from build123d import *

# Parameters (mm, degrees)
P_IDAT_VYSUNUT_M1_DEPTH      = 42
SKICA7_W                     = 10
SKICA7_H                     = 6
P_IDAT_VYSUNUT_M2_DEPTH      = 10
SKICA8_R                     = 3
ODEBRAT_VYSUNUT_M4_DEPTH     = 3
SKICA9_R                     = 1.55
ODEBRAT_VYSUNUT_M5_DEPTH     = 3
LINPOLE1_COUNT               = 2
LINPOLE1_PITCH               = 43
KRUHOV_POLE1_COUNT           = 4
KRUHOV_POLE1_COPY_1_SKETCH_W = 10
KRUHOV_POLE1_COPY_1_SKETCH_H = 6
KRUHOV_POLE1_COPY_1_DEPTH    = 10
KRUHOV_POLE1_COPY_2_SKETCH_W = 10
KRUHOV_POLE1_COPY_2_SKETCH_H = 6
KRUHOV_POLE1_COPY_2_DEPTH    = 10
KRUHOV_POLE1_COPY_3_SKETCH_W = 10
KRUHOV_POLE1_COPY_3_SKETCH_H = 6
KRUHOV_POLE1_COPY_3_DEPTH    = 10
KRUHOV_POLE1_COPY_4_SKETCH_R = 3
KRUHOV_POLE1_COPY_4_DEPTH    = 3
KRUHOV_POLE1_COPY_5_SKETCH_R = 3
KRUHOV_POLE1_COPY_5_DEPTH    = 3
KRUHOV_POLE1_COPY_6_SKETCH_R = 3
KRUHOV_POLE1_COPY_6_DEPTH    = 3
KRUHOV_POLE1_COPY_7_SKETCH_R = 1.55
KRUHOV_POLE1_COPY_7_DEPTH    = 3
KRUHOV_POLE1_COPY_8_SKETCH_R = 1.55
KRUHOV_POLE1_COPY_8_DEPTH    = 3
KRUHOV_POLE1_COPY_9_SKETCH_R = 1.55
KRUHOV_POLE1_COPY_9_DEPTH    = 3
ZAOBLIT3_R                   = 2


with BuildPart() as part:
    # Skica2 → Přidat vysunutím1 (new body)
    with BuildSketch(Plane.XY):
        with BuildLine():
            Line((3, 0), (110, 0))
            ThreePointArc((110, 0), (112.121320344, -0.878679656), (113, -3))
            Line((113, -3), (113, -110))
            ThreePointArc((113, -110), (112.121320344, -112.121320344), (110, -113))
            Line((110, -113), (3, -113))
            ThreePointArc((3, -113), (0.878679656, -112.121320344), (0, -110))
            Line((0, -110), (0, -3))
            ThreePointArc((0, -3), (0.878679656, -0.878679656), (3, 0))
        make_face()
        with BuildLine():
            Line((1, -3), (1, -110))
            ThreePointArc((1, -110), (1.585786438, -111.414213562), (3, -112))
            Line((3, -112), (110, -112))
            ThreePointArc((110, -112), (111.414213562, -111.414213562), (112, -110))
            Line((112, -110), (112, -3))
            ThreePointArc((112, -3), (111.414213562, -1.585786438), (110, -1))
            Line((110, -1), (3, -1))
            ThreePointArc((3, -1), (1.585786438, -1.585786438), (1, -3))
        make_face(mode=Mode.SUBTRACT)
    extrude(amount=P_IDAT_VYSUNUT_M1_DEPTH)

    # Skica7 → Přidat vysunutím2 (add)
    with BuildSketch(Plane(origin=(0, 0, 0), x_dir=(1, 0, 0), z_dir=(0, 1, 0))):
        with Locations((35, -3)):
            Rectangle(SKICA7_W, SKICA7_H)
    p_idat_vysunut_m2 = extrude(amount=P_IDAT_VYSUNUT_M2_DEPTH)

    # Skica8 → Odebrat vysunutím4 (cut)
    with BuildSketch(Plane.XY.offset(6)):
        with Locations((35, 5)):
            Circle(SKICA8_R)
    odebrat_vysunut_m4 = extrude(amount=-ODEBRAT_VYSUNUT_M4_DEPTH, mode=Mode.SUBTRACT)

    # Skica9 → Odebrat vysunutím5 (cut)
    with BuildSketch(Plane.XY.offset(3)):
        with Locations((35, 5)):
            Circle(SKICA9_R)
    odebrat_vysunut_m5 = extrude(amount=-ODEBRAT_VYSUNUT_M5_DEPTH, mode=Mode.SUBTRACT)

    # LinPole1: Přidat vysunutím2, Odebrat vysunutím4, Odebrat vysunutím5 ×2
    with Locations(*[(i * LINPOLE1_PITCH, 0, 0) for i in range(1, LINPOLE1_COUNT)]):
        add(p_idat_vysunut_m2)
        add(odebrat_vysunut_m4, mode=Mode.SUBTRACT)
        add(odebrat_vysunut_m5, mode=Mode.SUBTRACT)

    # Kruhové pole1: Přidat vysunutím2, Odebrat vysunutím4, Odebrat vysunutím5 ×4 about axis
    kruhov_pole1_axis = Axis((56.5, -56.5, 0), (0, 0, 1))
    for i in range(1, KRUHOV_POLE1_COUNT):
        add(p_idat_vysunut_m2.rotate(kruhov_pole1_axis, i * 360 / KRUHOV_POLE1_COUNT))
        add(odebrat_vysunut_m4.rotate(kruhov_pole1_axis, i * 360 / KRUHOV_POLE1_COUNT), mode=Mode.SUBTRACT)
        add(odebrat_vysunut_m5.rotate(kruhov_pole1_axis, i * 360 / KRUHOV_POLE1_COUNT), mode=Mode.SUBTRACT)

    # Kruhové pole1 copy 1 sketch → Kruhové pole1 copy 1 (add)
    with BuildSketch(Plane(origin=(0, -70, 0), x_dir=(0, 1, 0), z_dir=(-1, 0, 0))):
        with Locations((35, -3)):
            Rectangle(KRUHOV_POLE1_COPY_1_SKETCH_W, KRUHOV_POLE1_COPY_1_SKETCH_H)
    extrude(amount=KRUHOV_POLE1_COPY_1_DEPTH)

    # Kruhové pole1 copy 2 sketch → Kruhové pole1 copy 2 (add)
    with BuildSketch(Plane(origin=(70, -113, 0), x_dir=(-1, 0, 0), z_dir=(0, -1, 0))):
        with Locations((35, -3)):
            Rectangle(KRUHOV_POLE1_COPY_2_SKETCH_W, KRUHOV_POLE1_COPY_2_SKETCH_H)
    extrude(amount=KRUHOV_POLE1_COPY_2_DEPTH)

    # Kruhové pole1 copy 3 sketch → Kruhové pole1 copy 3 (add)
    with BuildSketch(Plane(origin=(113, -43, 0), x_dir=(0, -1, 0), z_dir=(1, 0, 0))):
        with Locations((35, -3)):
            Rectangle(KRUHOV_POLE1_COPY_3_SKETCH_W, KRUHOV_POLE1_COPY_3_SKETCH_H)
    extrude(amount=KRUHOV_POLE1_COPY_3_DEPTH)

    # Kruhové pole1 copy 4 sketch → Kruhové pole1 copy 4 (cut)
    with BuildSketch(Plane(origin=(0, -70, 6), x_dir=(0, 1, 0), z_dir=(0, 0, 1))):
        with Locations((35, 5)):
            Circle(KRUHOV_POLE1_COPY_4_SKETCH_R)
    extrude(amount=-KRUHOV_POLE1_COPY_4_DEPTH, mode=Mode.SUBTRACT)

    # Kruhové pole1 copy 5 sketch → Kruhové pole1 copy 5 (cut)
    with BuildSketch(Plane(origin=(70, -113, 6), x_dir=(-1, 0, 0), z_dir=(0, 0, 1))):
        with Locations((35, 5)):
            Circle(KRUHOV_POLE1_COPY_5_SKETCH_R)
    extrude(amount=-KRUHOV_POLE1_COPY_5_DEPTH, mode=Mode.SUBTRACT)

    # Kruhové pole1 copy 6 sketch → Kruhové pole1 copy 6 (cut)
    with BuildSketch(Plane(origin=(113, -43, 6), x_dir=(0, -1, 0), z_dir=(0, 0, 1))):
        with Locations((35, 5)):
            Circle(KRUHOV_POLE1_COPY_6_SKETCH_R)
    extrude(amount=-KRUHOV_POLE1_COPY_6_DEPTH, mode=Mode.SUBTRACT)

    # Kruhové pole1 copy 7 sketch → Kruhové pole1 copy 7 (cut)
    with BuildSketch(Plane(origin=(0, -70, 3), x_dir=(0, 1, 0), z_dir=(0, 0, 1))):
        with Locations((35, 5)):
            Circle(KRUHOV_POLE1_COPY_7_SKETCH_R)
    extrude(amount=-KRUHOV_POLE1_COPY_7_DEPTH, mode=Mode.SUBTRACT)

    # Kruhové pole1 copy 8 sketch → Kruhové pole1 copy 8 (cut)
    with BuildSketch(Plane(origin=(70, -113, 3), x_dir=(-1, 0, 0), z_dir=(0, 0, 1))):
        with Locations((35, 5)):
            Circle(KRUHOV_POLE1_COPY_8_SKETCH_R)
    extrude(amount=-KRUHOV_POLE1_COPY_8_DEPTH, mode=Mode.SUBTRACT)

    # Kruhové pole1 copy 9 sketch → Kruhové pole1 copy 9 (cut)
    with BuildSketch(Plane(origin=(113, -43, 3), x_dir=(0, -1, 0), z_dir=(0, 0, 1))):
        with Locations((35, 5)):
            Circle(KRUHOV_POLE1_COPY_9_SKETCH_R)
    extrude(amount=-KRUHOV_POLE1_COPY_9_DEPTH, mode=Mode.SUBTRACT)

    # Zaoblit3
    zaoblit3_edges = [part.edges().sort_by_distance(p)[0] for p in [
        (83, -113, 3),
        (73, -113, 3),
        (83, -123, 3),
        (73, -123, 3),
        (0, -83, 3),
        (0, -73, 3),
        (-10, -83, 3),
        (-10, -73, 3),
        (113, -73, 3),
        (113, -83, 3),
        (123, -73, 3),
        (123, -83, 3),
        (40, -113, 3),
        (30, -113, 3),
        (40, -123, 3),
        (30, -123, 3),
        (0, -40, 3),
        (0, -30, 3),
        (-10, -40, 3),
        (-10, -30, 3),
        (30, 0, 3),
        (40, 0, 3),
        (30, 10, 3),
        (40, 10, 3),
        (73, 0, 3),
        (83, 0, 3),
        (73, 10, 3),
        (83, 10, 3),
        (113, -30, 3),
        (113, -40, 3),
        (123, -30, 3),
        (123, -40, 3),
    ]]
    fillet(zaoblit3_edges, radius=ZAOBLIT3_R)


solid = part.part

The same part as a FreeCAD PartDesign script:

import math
import FreeCAD as App
import Part
import Sketcher

V = App.Vector


def edges_at(feature, points):
    """Names of the edges that pass closest to the given points."""
    edges = feature.Shape.Edges
    near = lambda p: min(range(len(edges)), key=lambda i: edges[i].distToShape(Part.Vertex(*p))[0])
    return sorted({f"Edge{near(p) + 1}" for p in points})


def add_polygon(sketch, points):
    """Adds a closed chain of lines whose ends are joined by coincident constraints."""
    first, n = sketch.GeometryCount, len(points)
    for a, b in zip(points, points[1:] + points[:1]):
        sketch.addGeometry(Part.LineSegment(App.Vector(*a, 0), App.Vector(*b, 0)), False)
    for i in range(n):
        sketch.addConstraint(Sketcher.Constraint("Coincident", first + i, 2, first + (i + 1) % n, 1))

doc = App.newDocument("Part")
params = doc.addObject("Spreadsheet::Sheet", "Params")
for row, (alias, value) in enumerate([
    ("sketch1_radius", "3 mm"),
    ("sketch1_radius2", "2 mm"),
    ("sketch1_width", "107 mm"),
    ("pad1_length", "42 mm"),
    ("sketch2_width", "10 mm"),
    ("sketch2_height", "6 mm"),
    ("pad2_length", "10 mm"),
    ("sketch3_diameter", "6 mm"),
    ("pocket1_length", "3 mm"),
    ("sketch4_diameter", "3.1 mm"),
    ("pocket2_length", "3 mm"),
    ("linearpattern_pitch", "43 mm"),
    ("sketch5_width", "10 mm"),
    ("sketch5_height", "6 mm"),
    ("pad3_length", "10 mm"),
    ("sketch6_width", "10 mm"),
    ("sketch6_height", "6 mm"),
    ("pad4_length", "10 mm"),
    ("sketch7_width", "10 mm"),
    ("sketch7_height", "6 mm"),
    ("pad5_length", "10 mm"),
    ("sketch8_diameter", "6 mm"),
    ("pocket3_length", "3 mm"),
    ("sketch9_diameter", "6 mm"),
    ("pocket4_length", "3 mm"),
    ("sketch10_diameter", "6 mm"),
    ("pocket5_length", "3 mm"),
    ("sketch11_diameter", "3.1 mm"),
    ("pocket6_length", "3 mm"),
    ("sketch12_diameter", "3.1 mm"),
    ("pocket7_length", "3 mm"),
    ("sketch13_diameter", "3.1 mm"),
    ("pocket8_length", "3 mm"),
    ("fillet_radius", "2 mm"),
], start=1):
    params.set(f"A{row}", alias)
    params.set(f"B{row}", "=" + value)
    params.setAlias(f"B{row}", alias)

body = doc.addObject("PartDesign::Body", "Body")

sketch1 = body.newObject("Sketcher::SketchObject", "Sketch")
sketch1.AttachmentSupport = (doc.getObject("XY_Plane"), [""])
sketch1.MapMode = "FlatFace"
sketch1.addGeometry([
    Part.LineSegment(V(110, 0, 0), V(3, 0, 0)),
    Part.ArcOfCircle(Part.Circle(V(3, -3, 0), V(0, 0, 1), 3), math.radians(90), math.radians(180)),
    Part.LineSegment(V(0, -3, 0), V(0, -110, 0)),
    Part.ArcOfCircle(Part.Circle(V(3, -110, 0), V(0, 0, 1), 3), math.radians(180), math.radians(270)),
    Part.LineSegment(V(3, -113, 0), V(110, -113, 0)),
    Part.ArcOfCircle(Part.Circle(V(110, -110, 0), V(0, 0, 1), 3), math.radians(-90), math.radians(0)),
    Part.LineSegment(V(113, -110, 0), V(113, -3, 0)),
    Part.ArcOfCircle(Part.Circle(V(110, -3, 0), V(0, 0, 1), 3), math.radians(0), math.radians(90)),
    Part.ArcOfCircle(Part.Circle(V(3, -3, 0), V(0, 0, 1), 2), math.radians(90), math.radians(180)),
    Part.LineSegment(V(3, -1, 0), V(110, -1, 0)),
    Part.ArcOfCircle(Part.Circle(V(110, -3, 0), V(0, 0, 1), 2), math.radians(0), math.radians(90)),
    Part.LineSegment(V(112, -3, 0), V(112, -110, 0)),
    Part.ArcOfCircle(Part.Circle(V(110, -110, 0), V(0, 0, 1), 2), math.radians(-90), math.radians(0)),
    Part.LineSegment(V(110, -112, 0), V(3, -112, 0)),
    Part.ArcOfCircle(Part.Circle(V(3, -110, 0), V(0, 0, 1), 2), math.radians(-180), math.radians(-90)),
    Part.LineSegment(V(1, -110, 0), V(1, -3, 0)),
], False)
sketch1.addConstraint([
    Sketcher.Constraint("Tangent", 0, 2, 1, 1),
    Sketcher.Constraint("Tangent", 1, 2, 2, 1),
    Sketcher.Constraint("Tangent", 2, 2, 3, 1),
    Sketcher.Constraint("Tangent", 3, 2, 4, 1),
    Sketcher.Constraint("Tangent", 4, 2, 5, 1),
    Sketcher.Constraint("Tangent", 5, 2, 6, 1),
    Sketcher.Constraint("Tangent", 6, 2, 7, 1),
    Sketcher.Constraint("Tangent", 7, 2, 0, 1),
    Sketcher.Constraint("Tangent", 8, 1, 9, 1),
    Sketcher.Constraint("Tangent", 9, 2, 10, 2),
    Sketcher.Constraint("Tangent", 10, 1, 11, 1),
    Sketcher.Constraint("Tangent", 11, 2, 12, 2),
    Sketcher.Constraint("Tangent", 12, 1, 13, 1),
    Sketcher.Constraint("Tangent", 13, 2, 14, 2),
    Sketcher.Constraint("Tangent", 14, 1, 15, 1),
    Sketcher.Constraint("Tangent", 15, 2, 8, 2),
    Sketcher.Constraint("Horizontal", 0),
    Sketcher.Constraint("Vertical", 2),
    Sketcher.Constraint("Horizontal", 4),
    Sketcher.Constraint("Vertical", 6),
    Sketcher.Constraint("Horizontal", 9),
    Sketcher.Constraint("Vertical", 11),
    Sketcher.Constraint("Horizontal", 13),
    Sketcher.Constraint("Vertical", 15),
    Sketcher.Constraint("Coincident", 8, 3, 1, 3),
    Sketcher.Constraint("Coincident", 10, 3, 7, 3),
    Sketcher.Constraint("Coincident", 12, 3, 5, 3),
    Sketcher.Constraint("Equal", 1, 3),
    Sketcher.Constraint("Equal", 3, 5),
    Sketcher.Constraint("Equal", 5, 7),
    Sketcher.Constraint("Equal", 12, 14),
    Sketcher.Constraint("PointOnObject", 0, 2, -1),
    Sketcher.Constraint("PointOnObject", 1, 2, -2),
    Sketcher.Constraint("Equal", 13, 2),
    Sketcher.Constraint("Radius", 1, 3.0),
    Sketcher.Constraint("Radius", 8, 2.0),
    Sketcher.Constraint("DistanceX", 0, 2, 0, 1, 107.0),
])
sketch1.setExpression("Constraints[34]", "Params.sketch1_radius")
sketch1.setExpression("Constraints[35]", "Params.sketch1_radius2")
sketch1.setExpression("Constraints[36]", "Params.sketch1_width")
pad1 = body.newObject("PartDesign::Pad", "Pad")
pad1.Profile = sketch1
pad1.setExpression("Length", "Params.pad1_length")

sketch2 = body.newObject("Sketcher::SketchObject", "Sketch001")
sketch2.AttachmentSupport = (doc.getObject("XZ_Plane"), [""])
sketch2.MapMode = "FlatFace"
add_polygon(sketch2, [(30, 0), (30, 6), (40, 6), (40, 0)])
sketch2.addConstraint([
    Sketcher.Constraint("Vertical", 0),
    Sketcher.Constraint("Horizontal", 1),
    Sketcher.Constraint("Vertical", 2),
    Sketcher.Constraint("Horizontal", 3),
    Sketcher.Constraint("PointOnObject", 2, 2, -1),
    Sketcher.Constraint("DistanceX", 1, 1, 1, 2, 10.0),
    Sketcher.Constraint("DistanceY", 0, 1, 0, 2, 6.0),
    Sketcher.Constraint("DistanceX", -1, 1, 0, 2, 30.0),
])
sketch2.setExpression("Constraints[9]", "Params.sketch2_width")
sketch2.setExpression("Constraints[10]", "Params.sketch2_height")
pad2 = body.newObject("PartDesign::Pad", "Pad001")
pad2.Profile = sketch2
pad2.setExpression("Length", "Params.pad2_length")
pad2.Reversed = True

sketch3 = body.newObject("Sketcher::SketchObject", "Sketch002")
sketch3.AttachmentSupport = (doc.getObject("XY_Plane"), [""])
sketch3.MapMode = "FlatFace"
sketch3.AttachmentOffset = App.Placement(V(0, 0, 6), App.Rotation())
sketch3.addGeometry(Part.Circle(V(35, 5, 0), V(0, 0, 1), 3), False)
sketch3.addConstraint([
    Sketcher.Constraint("Diameter", 0, 6.0),
    Sketcher.Constraint("DistanceX", -1, 1, 0, 3, 35.0),
    Sketcher.Constraint("DistanceY", -1, 1, 0, 3, 5.0),
])
sketch3.setExpression("Constraints[0]", "Params.sketch3_diameter")
pocket1 = body.newObject("PartDesign::Pocket", "Pocket")
pocket1.Profile = sketch3
pocket1.setExpression("Length", "Params.pocket1_length")

sketch4 = body.newObject("Sketcher::SketchObject", "Sketch003")
sketch4.AttachmentSupport = (doc.getObject("XY_Plane"), [""])
sketch4.MapMode = "FlatFace"
sketch4.AttachmentOffset = App.Placement(V(0, 0, 3), App.Rotation())
sketch4.addGeometry(Part.Circle(V(35, 5, 0), V(0, 0, 1), 1.6), False)
sketch4.addConstraint([
    Sketcher.Constraint("Diameter", 0, 3.1),
    Sketcher.Constraint("DistanceX", -1, 1, 0, 3, 35.0),
    Sketcher.Constraint("DistanceY", -1, 1, 0, 3, 5.0),
])
sketch4.setExpression("Constraints[0]", "Params.sketch4_diameter")
pocket2 = body.newObject("PartDesign::Pocket", "Pocket001")
pocket2.Profile = sketch4
pocket2.setExpression("Length", "Params.pocket2_length")
doc.recompute()

linearpattern = body.newObject("PartDesign::LinearPattern", "LinearPattern")
linearpattern.Originals = [pad2, pocket1, pocket2]
linearpattern.Direction = (doc.getObject("X_Axis"), [""])
linearpattern.Mode = "offset"
linearpattern.setExpression("Offset", "Params.linearpattern_pitch")
linearpattern.Occurrences = 2
body.Tip = linearpattern
doc.recompute()

datumline = body.newObject("PartDesign::Line", "DatumLine")
datumline.Placement = App.Placement(V(56.5, -56.5, 0), App.Rotation(V(0, 0, 1), V(0, 0, 1)))
polarpattern = body.newObject("PartDesign::PolarPattern", "PolarPattern")
polarpattern.Originals = [pad2, pocket1, pocket2]
polarpattern.Axis = (datumline, [""])
polarpattern.Angle = 360
polarpattern.Occurrences = 4
body.Tip = polarpattern

sketch5 = body.newObject("Sketcher::SketchObject", "Sketch004")
sketch5.AttachmentSupport = (doc.getObject("YZ_Plane"), [""])
sketch5.MapMode = "FlatFace"
add_polygon(sketch5, [(-40, 0), (-40, 6), (-30, 6), (-30, 0)])
sketch5.addConstraint([
    Sketcher.Constraint("Vertical", 0),
    Sketcher.Constraint("Horizontal", 1),
    Sketcher.Constraint("Vertical", 2),
    Sketcher.Constraint("Horizontal", 3),
    Sketcher.Constraint("PointOnObject", 2, 2, -1),
    Sketcher.Constraint("DistanceX", 1, 1, 1, 2, 10.0),
    Sketcher.Constraint("DistanceY", 0, 1, 0, 2, 6.0),
    Sketcher.Constraint("DistanceX", 0, 2, -1, 1, 40.0),
])
sketch5.setExpression("Constraints[9]", "Params.sketch5_width")
sketch5.setExpression("Constraints[10]", "Params.sketch5_height")
pad3 = body.newObject("PartDesign::Pad", "Pad002")
pad3.Profile = sketch5
pad3.setExpression("Length", "Params.pad3_length")
pad3.Reversed = True

sketch6 = body.newObject("Sketcher::SketchObject", "Sketch005")
sketch6.AttachmentSupport = (doc.getObject("XZ_Plane"), [""])
sketch6.MapMode = "FlatFace"
sketch6.AttachmentOffset = App.Placement(V(0, 0, 113), App.Rotation())
add_polygon(sketch6, [(40, 0), (40, 6), (30, 6), (30, 0)])
sketch6.addConstraint([
    Sketcher.Constraint("Vertical", 0),
    Sketcher.Constraint("Horizontal", 1),
    Sketcher.Constraint("Vertical", 2),
    Sketcher.Constraint("Horizontal", 3),
    Sketcher.Constraint("PointOnObject", 2, 2, -1),
    Sketcher.Constraint("DistanceX", 1, 2, 1, 1, 10.0),
    Sketcher.Constraint("DistanceY", 0, 1, 0, 2, 6.0),
    Sketcher.Constraint("DistanceX", -1, 1, 0, 2, 40.0),
])
sketch6.setExpression("Constraints[9]", "Params.sketch6_width")
sketch6.setExpression("Constraints[10]", "Params.sketch6_height")
pad4 = body.newObject("PartDesign::Pad", "Pad003")
pad4.Profile = sketch6
pad4.setExpression("Length", "Params.pad4_length")

sketch7 = body.newObject("Sketcher::SketchObject", "Sketch006")
sketch7.AttachmentSupport = (doc.getObject("YZ_Plane"), [""])
sketch7.MapMode = "FlatFace"
sketch7.AttachmentOffset = App.Placement(V(0, 0, 113), App.Rotation())
add_polygon(sketch7, [(-73, 0), (-73, 6), (-83, 6), (-83, 0)])
sketch7.addConstraint([
    Sketcher.Constraint("Vertical", 0),
    Sketcher.Constraint("Horizontal", 1),
    Sketcher.Constraint("Vertical", 2),
    Sketcher.Constraint("Horizontal", 3),
    Sketcher.Constraint("PointOnObject", 2, 2, -1),
    Sketcher.Constraint("DistanceX", 1, 2, 1, 1, 10.0),
    Sketcher.Constraint("DistanceY", 0, 1, 0, 2, 6.0),
    Sketcher.Constraint("DistanceX", 0, 2, -1, 1, 73.0),
])
sketch7.setExpression("Constraints[9]", "Params.sketch7_width")
sketch7.setExpression("Constraints[10]", "Params.sketch7_height")
pad5 = body.newObject("PartDesign::Pad", "Pad004")
pad5.Profile = sketch7
pad5.setExpression("Length", "Params.pad5_length")

sketch8 = body.newObject("Sketcher::SketchObject", "Sketch007")
sketch8.AttachmentSupport = (doc.getObject("XY_Plane"), [""])
sketch8.MapMode = "FlatFace"
sketch8.AttachmentOffset = App.Placement(V(0, 0, 6), App.Rotation())
sketch8.addGeometry(Part.Circle(V(-5, -35, 0), V(0, 0, 1), 3), False)
sketch8.addConstraint([
    Sketcher.Constraint("Diameter", 0, 6.0),
    Sketcher.Constraint("DistanceX", 0, 3, -1, 1, 5.0),
    Sketcher.Constraint("DistanceY", 0, 3, -1, 1, 35.0),
])
sketch8.setExpression("Constraints[0]", "Params.sketch8_diameter")
pocket3 = body.newObject("PartDesign::Pocket", "Pocket002")
pocket3.Profile = sketch8
pocket3.setExpression("Length", "Params.pocket3_length")

sketch9 = body.newObject("Sketcher::SketchObject", "Sketch008")
sketch9.AttachmentSupport = (doc.getObject("XY_Plane"), [""])
sketch9.MapMode = "FlatFace"
sketch9.AttachmentOffset = App.Placement(V(0, 0, 6), App.Rotation())
sketch9.addGeometry(Part.Circle(V(35, -118, 0), V(0, 0, 1), 3), False)
sketch9.addConstraint([
    Sketcher.Constraint("Diameter", 0, 6.0),
    Sketcher.Constraint("DistanceX", -1, 1, 0, 3, 35.0),
    Sketcher.Constraint("DistanceY", 0, 3, -1, 1, 118.0),
])
sketch9.setExpression("Constraints[0]", "Params.sketch9_diameter")
pocket4 = body.newObject("PartDesign::Pocket", "Pocket003")
pocket4.Profile = sketch9
pocket4.setExpression("Length", "Params.pocket4_length")

sketch10 = body.newObject("Sketcher::SketchObject", "Sketch009")
sketch10.AttachmentSupport = (doc.getObject("XY_Plane"), [""])
sketch10.MapMode = "FlatFace"
sketch10.AttachmentOffset = App.Placement(V(0, 0, 6), App.Rotation())
sketch10.addGeometry(Part.Circle(V(118, -78, 0), V(0, 0, 1), 3), False)
sketch10.addConstraint([
    Sketcher.Constraint("Diameter", 0, 6.0),
    Sketcher.Constraint("DistanceX", -1, 1, 0, 3, 118.0),
    Sketcher.Constraint("DistanceY", 0, 3, -1, 1, 78.0),
])
sketch10.setExpression("Constraints[0]", "Params.sketch10_diameter")
pocket5 = body.newObject("PartDesign::Pocket", "Pocket004")
pocket5.Profile = sketch10
pocket5.setExpression("Length", "Params.pocket5_length")

sketch11 = body.newObject("Sketcher::SketchObject", "Sketch010")
sketch11.AttachmentSupport = (doc.getObject("XY_Plane"), [""])
sketch11.MapMode = "FlatFace"
sketch11.AttachmentOffset = App.Placement(V(0, 0, 3), App.Rotation())
sketch11.addGeometry(Part.Circle(V(-5, -35, 0), V(0, 0, 1), 1.6), False)
sketch11.addConstraint([
    Sketcher.Constraint("Diameter", 0, 3.1),
    Sketcher.Constraint("DistanceX", 0, 3, -1, 1, 5.0),
    Sketcher.Constraint("DistanceY", 0, 3, -1, 1, 35.0),
])
sketch11.setExpression("Constraints[0]", "Params.sketch11_diameter")
pocket6 = body.newObject("PartDesign::Pocket", "Pocket005")
pocket6.Profile = sketch11
pocket6.setExpression("Length", "Params.pocket6_length")

sketch12 = body.newObject("Sketcher::SketchObject", "Sketch011")
sketch12.AttachmentSupport = (doc.getObject("XY_Plane"), [""])
sketch12.MapMode = "FlatFace"
sketch12.AttachmentOffset = App.Placement(V(0, 0, 3), App.Rotation())
sketch12.addGeometry(Part.Circle(V(35, -118, 0), V(0, 0, 1), 1.6), False)
sketch12.addConstraint([
    Sketcher.Constraint("Diameter", 0, 3.1),
    Sketcher.Constraint("DistanceX", -1, 1, 0, 3, 35.0),
    Sketcher.Constraint("DistanceY", 0, 3, -1, 1, 118.0),
])
sketch12.setExpression("Constraints[0]", "Params.sketch12_diameter")
pocket7 = body.newObject("PartDesign::Pocket", "Pocket006")
pocket7.Profile = sketch12
pocket7.setExpression("Length", "Params.pocket7_length")

sketch13 = body.newObject("Sketcher::SketchObject", "Sketch012")
sketch13.AttachmentSupport = (doc.getObject("XY_Plane"), [""])
sketch13.MapMode = "FlatFace"
sketch13.AttachmentOffset = App.Placement(V(0, 0, 3), App.Rotation())
sketch13.addGeometry(Part.Circle(V(118, -78, 0), V(0, 0, 1), 1.6), False)
sketch13.addConstraint([
    Sketcher.Constraint("Diameter", 0, 3.1),
    Sketcher.Constraint("DistanceX", -1, 1, 0, 3, 118.0),
    Sketcher.Constraint("DistanceY", 0, 3, -1, 1, 78.0),
])
sketch13.setExpression("Constraints[0]", "Params.sketch13_diameter")
pocket8 = body.newObject("PartDesign::Pocket", "Pocket007")
pocket8.Profile = sketch13
pocket8.setExpression("Length", "Params.pocket8_length")
doc.recompute()

fillet = body.newObject("PartDesign::Fillet", "Fillet")
fillet.Base = (pocket8, edges_at(pocket8, [
    (83, -113, 3),
    (73, -113, 3),
    (83, -123, 3),
    (73, -123, 3),
    (0, -83, 3),
    (0, -73, 3),
    (-10, -83, 3),
    (-10, -73, 3),
    (113, -73, 3),
    (113, -83, 3),
    (123, -73, 3),
    (123, -83, 3),
    (40, -113, 3),
    (30, -113, 3),
    (40, -123, 3),
    (30, -123, 3),
    (0, -40, 3),
    (0, -30, 3),
    (-10, -40, 3),
    (-10, -30, 3),
    (30, 0, 3),
    (40, 0, 3),
    (30, 10, 3),
    (40, 10, 3),
    (73, 0, 3),
    (83, 0, 3),
    (73, 10, 3),
    (83, 10, 3),
    (113, -30, 3),
    (113, -40, 3),
    (123, -30, 3),
    (123, -40, 3),
]))
fillet.setExpression("Radius", "Params.fillet_radius")

doc.recompute()
